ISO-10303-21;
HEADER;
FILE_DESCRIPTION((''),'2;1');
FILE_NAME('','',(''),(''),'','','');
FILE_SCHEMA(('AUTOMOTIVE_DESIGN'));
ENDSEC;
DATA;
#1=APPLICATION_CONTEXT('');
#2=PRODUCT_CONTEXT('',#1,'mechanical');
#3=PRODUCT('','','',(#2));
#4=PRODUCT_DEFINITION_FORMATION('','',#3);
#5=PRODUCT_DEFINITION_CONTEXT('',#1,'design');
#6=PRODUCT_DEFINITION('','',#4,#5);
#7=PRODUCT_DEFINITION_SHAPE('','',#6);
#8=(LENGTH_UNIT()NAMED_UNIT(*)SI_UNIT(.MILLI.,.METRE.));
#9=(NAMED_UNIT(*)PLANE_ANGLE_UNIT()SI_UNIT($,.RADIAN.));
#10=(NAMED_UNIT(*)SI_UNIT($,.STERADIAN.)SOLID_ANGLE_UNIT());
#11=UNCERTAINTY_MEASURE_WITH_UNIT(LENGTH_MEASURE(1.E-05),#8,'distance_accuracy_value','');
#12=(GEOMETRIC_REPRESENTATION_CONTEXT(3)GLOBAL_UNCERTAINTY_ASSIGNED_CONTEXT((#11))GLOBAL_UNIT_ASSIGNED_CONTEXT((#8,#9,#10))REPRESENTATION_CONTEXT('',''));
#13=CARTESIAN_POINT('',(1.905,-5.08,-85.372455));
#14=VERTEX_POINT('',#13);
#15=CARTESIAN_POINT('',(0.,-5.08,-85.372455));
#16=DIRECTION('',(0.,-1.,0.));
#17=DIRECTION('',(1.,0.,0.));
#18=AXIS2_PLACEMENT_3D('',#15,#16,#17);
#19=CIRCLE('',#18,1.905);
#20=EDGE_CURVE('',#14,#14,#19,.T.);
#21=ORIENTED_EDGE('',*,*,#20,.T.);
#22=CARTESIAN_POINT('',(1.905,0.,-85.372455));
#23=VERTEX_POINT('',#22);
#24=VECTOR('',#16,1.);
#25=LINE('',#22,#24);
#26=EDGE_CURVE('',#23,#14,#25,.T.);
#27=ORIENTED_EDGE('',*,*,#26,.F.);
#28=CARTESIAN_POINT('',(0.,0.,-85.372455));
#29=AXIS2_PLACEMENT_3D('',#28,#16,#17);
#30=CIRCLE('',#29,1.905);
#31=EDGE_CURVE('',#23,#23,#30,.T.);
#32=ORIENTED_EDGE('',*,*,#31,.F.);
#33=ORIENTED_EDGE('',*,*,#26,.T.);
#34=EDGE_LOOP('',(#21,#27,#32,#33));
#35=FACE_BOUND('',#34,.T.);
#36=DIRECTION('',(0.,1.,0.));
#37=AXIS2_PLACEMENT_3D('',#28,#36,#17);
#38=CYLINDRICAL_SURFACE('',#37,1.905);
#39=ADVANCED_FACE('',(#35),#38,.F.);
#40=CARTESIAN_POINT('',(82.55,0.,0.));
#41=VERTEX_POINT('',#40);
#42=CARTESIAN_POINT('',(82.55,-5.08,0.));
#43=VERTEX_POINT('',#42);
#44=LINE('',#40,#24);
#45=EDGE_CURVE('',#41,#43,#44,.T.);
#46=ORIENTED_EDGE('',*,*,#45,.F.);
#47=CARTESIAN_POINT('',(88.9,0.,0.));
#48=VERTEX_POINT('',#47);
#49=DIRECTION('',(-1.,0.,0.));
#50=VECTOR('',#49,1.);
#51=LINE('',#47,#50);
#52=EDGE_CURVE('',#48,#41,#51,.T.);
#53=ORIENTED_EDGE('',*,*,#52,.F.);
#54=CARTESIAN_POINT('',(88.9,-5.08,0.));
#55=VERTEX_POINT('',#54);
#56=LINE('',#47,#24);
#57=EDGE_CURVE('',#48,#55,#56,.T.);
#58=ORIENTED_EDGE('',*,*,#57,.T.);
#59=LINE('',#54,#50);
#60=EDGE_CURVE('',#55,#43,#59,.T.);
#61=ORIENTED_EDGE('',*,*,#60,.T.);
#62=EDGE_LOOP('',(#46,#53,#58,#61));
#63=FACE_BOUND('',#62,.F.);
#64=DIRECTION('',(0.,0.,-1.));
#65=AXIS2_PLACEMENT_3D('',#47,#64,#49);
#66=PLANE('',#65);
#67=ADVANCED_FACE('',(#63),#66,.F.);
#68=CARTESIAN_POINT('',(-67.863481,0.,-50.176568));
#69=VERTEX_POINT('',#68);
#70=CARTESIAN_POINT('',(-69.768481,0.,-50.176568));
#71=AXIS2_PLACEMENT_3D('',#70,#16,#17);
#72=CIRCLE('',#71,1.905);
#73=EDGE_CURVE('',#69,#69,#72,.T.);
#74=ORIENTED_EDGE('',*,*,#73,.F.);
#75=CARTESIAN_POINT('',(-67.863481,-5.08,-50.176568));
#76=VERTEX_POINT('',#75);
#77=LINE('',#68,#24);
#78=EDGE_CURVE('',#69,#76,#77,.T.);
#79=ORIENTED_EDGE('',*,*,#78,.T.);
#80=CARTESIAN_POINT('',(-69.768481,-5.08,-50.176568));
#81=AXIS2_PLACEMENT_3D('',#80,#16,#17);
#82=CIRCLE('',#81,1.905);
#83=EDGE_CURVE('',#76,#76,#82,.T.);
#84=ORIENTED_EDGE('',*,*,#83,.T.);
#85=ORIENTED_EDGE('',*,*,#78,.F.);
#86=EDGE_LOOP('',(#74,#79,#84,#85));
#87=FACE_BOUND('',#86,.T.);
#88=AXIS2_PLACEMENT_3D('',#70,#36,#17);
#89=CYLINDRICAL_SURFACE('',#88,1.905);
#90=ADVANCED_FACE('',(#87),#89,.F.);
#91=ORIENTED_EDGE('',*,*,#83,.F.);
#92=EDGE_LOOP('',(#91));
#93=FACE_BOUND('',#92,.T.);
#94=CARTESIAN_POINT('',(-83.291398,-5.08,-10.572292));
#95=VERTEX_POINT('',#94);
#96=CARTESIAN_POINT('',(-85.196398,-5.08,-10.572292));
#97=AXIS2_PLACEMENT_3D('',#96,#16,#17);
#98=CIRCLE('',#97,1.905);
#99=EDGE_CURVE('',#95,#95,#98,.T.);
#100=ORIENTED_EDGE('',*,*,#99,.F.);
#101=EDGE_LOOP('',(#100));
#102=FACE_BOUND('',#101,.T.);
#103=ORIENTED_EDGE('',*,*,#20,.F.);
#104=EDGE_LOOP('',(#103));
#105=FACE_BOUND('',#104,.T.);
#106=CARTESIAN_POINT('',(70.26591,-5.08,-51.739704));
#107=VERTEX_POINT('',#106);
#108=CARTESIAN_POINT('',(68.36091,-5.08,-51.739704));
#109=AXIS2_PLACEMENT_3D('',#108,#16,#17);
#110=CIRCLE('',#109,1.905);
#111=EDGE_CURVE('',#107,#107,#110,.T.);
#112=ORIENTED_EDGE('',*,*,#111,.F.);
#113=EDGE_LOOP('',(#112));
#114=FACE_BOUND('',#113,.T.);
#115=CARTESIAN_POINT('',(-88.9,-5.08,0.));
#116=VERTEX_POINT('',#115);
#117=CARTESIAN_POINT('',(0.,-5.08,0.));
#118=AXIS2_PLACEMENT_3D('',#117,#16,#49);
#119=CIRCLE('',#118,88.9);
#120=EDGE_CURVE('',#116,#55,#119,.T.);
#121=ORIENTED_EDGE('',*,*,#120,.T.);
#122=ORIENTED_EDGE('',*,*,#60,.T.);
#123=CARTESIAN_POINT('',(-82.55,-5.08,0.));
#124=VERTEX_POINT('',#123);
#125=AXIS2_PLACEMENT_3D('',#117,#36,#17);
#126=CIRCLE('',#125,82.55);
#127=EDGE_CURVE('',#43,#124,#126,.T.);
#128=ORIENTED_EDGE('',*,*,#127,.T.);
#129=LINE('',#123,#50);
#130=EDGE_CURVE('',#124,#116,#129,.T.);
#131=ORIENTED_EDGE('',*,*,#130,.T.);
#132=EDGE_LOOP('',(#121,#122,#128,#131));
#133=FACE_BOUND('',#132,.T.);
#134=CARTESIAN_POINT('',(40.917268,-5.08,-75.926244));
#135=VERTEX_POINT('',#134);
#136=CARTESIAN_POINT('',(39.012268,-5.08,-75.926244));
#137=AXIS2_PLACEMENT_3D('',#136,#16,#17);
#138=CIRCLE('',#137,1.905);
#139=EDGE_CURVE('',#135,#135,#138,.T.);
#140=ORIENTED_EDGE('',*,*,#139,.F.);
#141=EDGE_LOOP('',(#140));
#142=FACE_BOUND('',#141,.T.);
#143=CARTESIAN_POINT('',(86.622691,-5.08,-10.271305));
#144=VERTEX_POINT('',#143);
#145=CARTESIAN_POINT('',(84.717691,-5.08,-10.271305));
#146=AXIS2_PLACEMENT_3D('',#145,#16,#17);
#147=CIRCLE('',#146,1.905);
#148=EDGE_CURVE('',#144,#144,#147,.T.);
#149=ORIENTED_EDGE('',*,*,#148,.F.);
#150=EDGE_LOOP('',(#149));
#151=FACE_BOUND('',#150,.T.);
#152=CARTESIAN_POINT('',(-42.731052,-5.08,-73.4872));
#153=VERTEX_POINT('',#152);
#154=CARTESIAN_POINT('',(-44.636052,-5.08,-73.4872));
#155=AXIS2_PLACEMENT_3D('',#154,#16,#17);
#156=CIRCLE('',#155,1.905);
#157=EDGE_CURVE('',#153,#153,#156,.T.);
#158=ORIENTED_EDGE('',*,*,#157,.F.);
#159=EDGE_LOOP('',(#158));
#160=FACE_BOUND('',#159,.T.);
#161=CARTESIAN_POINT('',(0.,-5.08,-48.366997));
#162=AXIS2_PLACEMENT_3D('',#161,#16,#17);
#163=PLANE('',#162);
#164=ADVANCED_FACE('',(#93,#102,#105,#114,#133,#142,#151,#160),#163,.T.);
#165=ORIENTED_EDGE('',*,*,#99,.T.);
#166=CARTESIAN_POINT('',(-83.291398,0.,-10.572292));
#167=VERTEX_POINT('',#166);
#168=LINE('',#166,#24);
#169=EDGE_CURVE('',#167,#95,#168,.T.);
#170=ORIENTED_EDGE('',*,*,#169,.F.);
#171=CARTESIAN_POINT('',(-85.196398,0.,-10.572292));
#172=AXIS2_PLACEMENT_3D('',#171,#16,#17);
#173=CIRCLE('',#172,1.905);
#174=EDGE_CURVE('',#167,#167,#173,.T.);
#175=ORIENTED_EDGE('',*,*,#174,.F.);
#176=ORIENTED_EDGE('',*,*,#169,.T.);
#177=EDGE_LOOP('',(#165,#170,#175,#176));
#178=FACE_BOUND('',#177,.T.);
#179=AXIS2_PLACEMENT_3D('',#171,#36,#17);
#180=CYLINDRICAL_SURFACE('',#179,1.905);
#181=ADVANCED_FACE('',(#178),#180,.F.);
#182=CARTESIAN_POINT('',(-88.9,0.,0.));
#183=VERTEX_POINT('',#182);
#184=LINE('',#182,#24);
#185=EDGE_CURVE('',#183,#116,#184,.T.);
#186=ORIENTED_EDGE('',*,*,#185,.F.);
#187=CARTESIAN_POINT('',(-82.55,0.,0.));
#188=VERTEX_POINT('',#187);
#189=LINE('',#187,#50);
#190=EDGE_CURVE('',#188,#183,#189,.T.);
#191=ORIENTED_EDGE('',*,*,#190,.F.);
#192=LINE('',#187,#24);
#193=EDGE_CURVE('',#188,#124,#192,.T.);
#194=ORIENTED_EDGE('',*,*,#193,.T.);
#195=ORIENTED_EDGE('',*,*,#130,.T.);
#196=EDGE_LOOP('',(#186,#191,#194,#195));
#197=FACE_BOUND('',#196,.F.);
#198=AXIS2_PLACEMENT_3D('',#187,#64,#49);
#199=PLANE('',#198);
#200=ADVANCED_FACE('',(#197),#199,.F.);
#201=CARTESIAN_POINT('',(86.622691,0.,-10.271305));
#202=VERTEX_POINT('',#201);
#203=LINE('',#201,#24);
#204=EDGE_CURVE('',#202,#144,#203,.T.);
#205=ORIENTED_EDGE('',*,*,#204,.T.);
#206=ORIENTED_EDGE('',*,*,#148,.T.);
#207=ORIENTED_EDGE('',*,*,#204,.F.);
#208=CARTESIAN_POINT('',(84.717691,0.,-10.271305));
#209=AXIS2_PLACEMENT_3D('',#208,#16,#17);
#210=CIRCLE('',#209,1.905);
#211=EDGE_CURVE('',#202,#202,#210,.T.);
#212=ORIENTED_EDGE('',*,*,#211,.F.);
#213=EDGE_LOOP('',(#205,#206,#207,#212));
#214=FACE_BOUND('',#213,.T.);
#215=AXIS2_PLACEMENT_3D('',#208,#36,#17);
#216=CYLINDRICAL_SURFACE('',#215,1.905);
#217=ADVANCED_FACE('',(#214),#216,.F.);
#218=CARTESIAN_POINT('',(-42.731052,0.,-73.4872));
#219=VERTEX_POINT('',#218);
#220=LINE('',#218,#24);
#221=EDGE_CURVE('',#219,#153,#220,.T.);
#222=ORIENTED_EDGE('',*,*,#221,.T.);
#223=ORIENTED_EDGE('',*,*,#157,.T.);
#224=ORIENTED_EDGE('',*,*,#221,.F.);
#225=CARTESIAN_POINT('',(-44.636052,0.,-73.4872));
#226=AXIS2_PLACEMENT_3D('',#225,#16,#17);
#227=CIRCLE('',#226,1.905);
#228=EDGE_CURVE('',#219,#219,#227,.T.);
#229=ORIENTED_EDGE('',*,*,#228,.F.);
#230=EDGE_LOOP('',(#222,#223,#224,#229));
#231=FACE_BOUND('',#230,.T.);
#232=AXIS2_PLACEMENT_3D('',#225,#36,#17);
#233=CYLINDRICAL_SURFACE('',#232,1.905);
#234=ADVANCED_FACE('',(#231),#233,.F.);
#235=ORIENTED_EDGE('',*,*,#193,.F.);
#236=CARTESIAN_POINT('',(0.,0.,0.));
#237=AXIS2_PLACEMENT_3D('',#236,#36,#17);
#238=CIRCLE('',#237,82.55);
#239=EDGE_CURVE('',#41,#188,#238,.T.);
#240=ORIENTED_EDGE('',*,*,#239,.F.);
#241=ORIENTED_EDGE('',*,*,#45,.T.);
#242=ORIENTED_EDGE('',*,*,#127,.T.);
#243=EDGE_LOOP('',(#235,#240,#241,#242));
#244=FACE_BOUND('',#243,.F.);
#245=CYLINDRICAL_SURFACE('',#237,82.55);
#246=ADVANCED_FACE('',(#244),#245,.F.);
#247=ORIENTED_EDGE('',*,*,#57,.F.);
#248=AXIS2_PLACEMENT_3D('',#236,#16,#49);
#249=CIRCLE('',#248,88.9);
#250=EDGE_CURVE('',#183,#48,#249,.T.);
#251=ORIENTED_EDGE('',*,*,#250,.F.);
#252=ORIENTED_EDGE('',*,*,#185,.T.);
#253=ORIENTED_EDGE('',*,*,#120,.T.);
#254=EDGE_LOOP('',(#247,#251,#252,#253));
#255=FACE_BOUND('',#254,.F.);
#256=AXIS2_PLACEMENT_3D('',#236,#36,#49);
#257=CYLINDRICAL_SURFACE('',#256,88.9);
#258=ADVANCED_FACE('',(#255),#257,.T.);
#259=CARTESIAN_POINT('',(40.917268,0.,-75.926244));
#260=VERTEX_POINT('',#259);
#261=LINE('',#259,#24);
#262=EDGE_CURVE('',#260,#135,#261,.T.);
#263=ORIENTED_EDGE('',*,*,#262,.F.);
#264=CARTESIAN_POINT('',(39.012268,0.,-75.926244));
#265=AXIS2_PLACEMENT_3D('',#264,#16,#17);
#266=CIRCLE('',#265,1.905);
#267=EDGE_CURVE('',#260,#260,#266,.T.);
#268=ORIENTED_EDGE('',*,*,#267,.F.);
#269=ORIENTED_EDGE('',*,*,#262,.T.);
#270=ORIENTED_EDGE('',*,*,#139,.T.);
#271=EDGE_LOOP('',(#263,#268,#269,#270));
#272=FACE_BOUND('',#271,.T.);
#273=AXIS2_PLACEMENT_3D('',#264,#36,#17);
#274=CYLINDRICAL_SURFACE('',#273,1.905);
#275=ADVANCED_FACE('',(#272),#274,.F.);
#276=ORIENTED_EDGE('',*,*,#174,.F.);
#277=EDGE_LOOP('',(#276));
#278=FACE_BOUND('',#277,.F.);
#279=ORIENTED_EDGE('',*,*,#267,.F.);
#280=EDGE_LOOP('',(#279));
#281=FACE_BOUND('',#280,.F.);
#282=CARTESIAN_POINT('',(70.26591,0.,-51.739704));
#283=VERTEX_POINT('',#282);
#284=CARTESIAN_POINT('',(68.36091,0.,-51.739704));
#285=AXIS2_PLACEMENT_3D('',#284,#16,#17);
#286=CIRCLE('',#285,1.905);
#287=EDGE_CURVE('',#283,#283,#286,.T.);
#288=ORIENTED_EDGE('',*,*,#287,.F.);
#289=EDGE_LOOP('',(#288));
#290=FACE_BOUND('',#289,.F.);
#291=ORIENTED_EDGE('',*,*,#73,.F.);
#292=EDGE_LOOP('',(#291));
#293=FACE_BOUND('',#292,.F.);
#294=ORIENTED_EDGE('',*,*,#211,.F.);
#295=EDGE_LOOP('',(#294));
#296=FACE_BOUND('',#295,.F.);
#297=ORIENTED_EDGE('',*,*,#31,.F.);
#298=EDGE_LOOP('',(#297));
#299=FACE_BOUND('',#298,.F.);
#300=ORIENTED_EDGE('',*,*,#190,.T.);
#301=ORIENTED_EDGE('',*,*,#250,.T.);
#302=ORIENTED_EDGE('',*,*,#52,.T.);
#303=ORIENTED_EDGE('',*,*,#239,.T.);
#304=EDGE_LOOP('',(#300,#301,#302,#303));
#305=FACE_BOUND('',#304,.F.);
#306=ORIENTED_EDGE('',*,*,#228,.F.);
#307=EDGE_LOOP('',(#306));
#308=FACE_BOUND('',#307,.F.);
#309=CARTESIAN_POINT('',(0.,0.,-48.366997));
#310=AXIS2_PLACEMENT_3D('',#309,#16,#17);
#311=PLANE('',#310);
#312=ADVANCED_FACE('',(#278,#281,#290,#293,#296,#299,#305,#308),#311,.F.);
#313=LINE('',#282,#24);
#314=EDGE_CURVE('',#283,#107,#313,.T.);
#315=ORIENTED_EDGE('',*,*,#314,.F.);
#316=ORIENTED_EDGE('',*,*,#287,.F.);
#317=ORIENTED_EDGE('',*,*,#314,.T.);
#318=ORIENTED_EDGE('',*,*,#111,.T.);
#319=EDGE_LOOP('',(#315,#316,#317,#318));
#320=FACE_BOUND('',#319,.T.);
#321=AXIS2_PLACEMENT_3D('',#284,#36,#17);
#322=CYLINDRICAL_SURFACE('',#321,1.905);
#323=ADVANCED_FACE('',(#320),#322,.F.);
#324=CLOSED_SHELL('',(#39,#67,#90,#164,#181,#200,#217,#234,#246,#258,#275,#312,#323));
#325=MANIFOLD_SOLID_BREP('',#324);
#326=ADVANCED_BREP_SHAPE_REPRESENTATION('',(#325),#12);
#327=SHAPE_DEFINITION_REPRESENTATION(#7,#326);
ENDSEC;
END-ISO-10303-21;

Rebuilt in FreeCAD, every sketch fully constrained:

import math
import FreeCAD as App
import Part
import Sketcher

V = App.Vector
Q = App.Units.Quantity

doc = App.newDocument("Part")
body = doc.addObject("PartDesign::Body", "Body")

# Sketch on XZ plane
sketch1 = body.newObject("Sketcher::SketchObject", "Sketch")
sketch1.AttachmentSupport = (doc.getObject("XZ_Plane"), [""])
sketch1.MapMode = "FlatFace"
sketch1.addGeometry([
    Part.LineSegment(V(-82.5, 0, 0), V(-88.9, 0, 0)),  # 0
    Part.ArcOfCircle(Part.Circle(V(0, 0, 0), V(0, 0, 1), 88.9), math.radians(180), math.radians(360)),  # 1
    Part.LineSegment(V(88.9, 0, 0), V(82.5, 0, 0)),  # 2
    Part.ArcOfCircle(Part.Circle(V(0, 0, 0), V(0, 0, 1), 82.5), math.radians(180), math.radians(360)),  # 3
    Part.Circle(V(-44.6, -73.5, 0), V(0, 0, 1), 1.9),  # 4
    Part.Circle(V(-69.8, -50.2, 0), V(0, 0, 1), 1.9),  # 5
    Part.Circle(V(0, -85.4, 0), V(0, 0, 1), 1.9),  # 6
    Part.Circle(V(39, -75.9, 0), V(0, 0, 1), 1.9),  # 7
    Part.Circle(V(68.4, -51.7, 0), V(0, 0, 1), 1.9),  # 8
    Part.Circle(V(-85.2, -10.6, 0), V(0, 0, 1), 1.9),  # 9
    Part.Circle(V(84.7, -10.3, 0), V(0, 0, 1), 1.9),  # 10
], False)
sketch1.addConstraint([
    Sketcher.Constraint("Coincident", 0, 2, 1, 1),
    Sketcher.Constraint("Coincident", 1, 2, 2, 1),
    Sketcher.Constraint("Coincident", 2, 2, 3, 2),
    Sketcher.Constraint("Coincident", 3, 1, 0, 1),
    Sketcher.Constraint("Horizontal", 0),
    Sketcher.Constraint("Horizontal", 2),
    Sketcher.Constraint("Coincident", 1, 3, -1, 1),
    Sketcher.Constraint("Coincident", 3, 3, -1, 1),
    Sketcher.Constraint("Equal", 4, 5),
    Sketcher.Constraint("Equal", 5, 6),
    Sketcher.Constraint("Equal", 6, 7),
    Sketcher.Constraint("Equal", 7, 8),
    Sketcher.Constraint("Equal", 8, 9),
    Sketcher.Constraint("Equal", 9, 10),
    Sketcher.Constraint("PointOnObject", 6, 3, -2),
    Sketcher.Constraint("PointOnObject", 0, 2, -1),
    Sketcher.Constraint("PointOnObject", 1, 2, -1),
    Sketcher.Constraint("Radius", 1, Q("3.5 in")),
    Sketcher.Constraint("Diameter", 4, Q("0.15 in")),
    Sketcher.Constraint("Radius", 3, Q("3.25 in")),
    Sketcher.Constraint("DistanceY", 4, 3, -1, 1, 73.4872),
    Sketcher.Constraint("DistanceX", 9, 3, -1, 1, 85.196398),
    Sketcher.Constraint("DistanceY", 8, 3, 10, 3, 41.468399),
    Sketcher.Constraint("DistanceX", 5, 3, -1, 1, 69.768481),
    Sketcher.Constraint("DistanceY", 5, 3, -1, 1, 50.176568),
    Sketcher.Constraint("DistanceX", -1, 1, 8, 3, 68.36091),
    Sketcher.Constraint("DistanceY", 9, 3, -1, 1, 10.572292),
    Sketcher.Constraint("DistanceX", -1, 1, 10, 3, 84.717691),
    Sketcher.Constraint("DistanceX", 5, 3, 4, 3, 25.132429),
    Sketcher.Constraint("DistanceY", 6, 3, 7, 3, 9.446211),
    Sketcher.Constraint("DistanceX", 4, 3, 7, 3, 83.64832),
    Sketcher.Constraint("DistanceY", 7, 3, 8, 3, 24.18654),
    Sketcher.Constraint("DistanceY", 6, 3, -1, 1, 85.372455),
])
pad1 = body.newObject("PartDesign::Pad", "Pad")
pad1.Profile = sketch1
pad1.Length = Q("0.2 in")

doc.recompute()
